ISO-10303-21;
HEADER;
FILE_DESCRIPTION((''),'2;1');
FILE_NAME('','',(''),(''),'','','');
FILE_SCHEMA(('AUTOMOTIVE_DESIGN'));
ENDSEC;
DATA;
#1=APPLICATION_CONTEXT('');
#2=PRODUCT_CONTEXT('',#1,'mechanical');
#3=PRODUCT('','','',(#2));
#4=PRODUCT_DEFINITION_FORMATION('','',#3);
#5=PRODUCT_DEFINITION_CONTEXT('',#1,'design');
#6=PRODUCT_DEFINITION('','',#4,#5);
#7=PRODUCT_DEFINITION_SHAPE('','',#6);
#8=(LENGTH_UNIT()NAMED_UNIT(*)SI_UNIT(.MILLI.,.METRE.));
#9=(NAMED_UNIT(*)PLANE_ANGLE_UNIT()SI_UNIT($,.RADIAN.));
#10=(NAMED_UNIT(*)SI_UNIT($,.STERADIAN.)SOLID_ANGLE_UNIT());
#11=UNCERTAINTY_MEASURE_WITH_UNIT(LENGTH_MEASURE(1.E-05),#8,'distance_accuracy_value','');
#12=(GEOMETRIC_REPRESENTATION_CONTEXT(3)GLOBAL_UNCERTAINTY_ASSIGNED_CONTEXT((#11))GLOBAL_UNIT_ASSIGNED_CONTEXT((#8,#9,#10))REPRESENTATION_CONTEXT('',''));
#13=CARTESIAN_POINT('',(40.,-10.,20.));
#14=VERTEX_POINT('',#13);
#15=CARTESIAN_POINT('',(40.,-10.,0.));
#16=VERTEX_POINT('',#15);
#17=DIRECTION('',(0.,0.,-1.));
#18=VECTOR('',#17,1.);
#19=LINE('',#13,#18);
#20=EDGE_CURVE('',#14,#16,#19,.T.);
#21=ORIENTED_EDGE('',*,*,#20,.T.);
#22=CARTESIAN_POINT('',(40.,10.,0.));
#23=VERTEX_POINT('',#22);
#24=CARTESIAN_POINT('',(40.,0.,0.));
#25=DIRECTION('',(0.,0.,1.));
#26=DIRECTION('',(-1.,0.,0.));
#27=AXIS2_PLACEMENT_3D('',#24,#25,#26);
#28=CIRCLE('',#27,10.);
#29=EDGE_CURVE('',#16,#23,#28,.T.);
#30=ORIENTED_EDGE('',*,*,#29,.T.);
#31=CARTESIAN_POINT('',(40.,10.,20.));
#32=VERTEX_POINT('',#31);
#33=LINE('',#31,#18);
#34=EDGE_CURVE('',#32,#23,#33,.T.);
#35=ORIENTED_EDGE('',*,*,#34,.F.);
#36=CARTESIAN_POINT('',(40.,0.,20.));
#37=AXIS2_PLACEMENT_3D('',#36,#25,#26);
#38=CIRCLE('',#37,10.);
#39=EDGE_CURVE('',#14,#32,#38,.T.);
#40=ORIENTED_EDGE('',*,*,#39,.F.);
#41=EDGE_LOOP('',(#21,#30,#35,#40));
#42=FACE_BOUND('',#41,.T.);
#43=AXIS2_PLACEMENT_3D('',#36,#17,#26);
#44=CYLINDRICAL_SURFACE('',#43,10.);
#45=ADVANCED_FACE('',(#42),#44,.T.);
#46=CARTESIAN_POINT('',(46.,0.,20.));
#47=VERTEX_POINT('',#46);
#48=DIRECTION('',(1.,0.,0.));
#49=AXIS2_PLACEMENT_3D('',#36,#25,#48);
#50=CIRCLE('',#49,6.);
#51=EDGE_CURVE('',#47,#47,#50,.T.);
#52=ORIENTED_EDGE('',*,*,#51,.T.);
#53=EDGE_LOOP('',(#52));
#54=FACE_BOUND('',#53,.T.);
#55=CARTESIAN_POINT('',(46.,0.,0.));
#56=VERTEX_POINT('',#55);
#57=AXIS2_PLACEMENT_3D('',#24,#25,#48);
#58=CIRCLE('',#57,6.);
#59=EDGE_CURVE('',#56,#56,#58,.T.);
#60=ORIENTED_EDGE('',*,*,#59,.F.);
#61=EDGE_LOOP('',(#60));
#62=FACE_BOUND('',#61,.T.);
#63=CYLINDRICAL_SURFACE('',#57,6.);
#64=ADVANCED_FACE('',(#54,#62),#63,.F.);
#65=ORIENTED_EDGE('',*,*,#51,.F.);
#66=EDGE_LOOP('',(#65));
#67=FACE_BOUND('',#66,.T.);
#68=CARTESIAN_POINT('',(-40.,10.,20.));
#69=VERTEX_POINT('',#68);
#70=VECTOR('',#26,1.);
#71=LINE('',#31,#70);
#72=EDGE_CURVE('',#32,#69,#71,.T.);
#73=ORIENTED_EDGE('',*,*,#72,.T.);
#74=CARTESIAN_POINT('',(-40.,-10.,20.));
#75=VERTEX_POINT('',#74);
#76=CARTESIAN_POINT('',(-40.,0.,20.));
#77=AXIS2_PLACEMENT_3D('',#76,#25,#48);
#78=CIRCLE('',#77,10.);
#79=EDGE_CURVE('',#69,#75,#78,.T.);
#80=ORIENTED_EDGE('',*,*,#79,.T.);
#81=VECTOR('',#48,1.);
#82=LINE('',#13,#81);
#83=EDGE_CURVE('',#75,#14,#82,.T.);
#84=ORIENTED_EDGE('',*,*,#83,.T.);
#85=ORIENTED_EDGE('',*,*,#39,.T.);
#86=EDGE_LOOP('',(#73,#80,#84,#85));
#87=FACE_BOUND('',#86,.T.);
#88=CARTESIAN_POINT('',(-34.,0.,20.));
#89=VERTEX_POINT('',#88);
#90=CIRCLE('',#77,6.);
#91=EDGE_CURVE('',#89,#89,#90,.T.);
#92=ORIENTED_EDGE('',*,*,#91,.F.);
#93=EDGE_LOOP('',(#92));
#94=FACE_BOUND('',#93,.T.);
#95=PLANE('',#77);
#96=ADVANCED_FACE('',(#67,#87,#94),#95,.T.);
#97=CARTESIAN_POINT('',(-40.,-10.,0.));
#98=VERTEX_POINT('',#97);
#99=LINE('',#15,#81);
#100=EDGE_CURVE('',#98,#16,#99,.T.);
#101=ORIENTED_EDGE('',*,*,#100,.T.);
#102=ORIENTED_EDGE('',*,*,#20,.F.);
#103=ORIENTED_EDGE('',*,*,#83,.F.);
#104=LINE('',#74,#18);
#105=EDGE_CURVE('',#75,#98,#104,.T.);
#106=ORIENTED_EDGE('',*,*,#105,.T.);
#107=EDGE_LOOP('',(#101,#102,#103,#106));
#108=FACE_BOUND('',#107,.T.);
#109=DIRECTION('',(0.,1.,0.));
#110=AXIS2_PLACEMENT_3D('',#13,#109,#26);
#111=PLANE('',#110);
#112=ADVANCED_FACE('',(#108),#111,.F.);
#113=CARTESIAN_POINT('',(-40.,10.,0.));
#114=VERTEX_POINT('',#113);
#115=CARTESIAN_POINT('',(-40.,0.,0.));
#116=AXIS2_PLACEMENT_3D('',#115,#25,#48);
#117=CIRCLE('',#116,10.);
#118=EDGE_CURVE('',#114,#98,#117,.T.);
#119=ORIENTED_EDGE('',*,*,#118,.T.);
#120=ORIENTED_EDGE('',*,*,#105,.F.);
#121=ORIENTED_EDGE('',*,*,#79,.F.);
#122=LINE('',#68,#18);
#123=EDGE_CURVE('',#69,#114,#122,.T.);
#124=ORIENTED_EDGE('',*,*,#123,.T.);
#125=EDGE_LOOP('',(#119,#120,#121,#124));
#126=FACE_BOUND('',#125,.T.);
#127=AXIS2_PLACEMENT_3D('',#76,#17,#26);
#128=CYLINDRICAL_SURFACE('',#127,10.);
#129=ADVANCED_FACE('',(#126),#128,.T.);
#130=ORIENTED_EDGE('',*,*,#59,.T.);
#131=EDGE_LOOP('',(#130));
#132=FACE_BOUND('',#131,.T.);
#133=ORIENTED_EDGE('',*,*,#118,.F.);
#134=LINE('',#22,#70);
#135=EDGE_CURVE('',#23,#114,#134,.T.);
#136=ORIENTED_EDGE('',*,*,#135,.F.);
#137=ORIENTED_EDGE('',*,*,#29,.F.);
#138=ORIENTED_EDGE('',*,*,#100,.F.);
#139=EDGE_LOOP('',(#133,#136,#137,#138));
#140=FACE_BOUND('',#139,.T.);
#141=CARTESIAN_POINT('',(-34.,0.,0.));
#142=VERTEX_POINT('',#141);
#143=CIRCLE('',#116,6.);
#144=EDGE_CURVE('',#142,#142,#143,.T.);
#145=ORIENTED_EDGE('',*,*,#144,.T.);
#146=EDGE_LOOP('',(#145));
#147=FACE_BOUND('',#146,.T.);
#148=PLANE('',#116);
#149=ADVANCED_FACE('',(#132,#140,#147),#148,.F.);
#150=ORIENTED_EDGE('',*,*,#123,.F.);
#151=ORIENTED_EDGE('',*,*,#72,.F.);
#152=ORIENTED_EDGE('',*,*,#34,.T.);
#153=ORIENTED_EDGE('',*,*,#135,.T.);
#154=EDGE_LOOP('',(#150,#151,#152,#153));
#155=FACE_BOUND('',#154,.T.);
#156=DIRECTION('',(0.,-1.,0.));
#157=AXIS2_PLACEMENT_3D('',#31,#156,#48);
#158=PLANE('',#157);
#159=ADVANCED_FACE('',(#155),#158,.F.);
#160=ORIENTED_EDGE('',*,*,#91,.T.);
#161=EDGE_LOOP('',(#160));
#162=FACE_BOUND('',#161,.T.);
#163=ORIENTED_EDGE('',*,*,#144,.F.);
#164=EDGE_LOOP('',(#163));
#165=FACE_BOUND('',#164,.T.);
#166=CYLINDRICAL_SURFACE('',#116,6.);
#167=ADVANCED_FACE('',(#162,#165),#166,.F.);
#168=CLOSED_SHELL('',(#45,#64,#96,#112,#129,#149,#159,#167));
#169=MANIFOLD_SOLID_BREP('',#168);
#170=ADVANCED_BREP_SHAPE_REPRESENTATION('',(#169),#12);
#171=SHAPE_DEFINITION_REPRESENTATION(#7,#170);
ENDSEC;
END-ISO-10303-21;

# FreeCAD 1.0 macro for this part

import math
import FreeCAD as App
import Part
import Sketcher

V = App.Vector

doc = App.newDocument("Part")
params = doc.addObject("Spreadsheet::Sheet", "Params")
for row, (alias, value) in enumerate([
    ("sketch1_radius", "10 mm"),
    ("sketch1_width", "80 mm"),
    ("pad1_length", "20 mm"),
    ("sketch2_diameter", "12 mm"),
], start=1):
    params.set(f"A{row}", alias)
    params.set(f"B{row}", "=" + value)
    params.setAlias(f"B{row}", alias)

body = doc.addObject("PartDesign::Body", "Body")

sketch1 = body.newObject("Sketcher::SketchObject", "Sketch")
sketch1.AttachmentSupport = (doc.getObject("XY_Plane"), [""])
sketch1.MapMode = "FlatFace"
sketch1.addGeometry([
    Part.LineSegment(V(-40, -10, 0), V(40, -10, 0)),
    Part.ArcOfCircle(Part.Circle(V(40, 0, 0), V(0, 0, 1), 10), math.radians(-90), math.radians(90)),
    Part.LineSegment(V(40, 10, 0), V(-40, 10, 0)),
    Part.ArcOfCircle(Part.Circle(V(-40, 0, 0), V(0, 0, 1), 10), math.radians(90), math.radians(270)),
], False)
sketch1.addConstraint([
    Sketcher.Constraint("Tangent", 0, 2, 1, 1),
    Sketcher.Constraint("Tangent", 1, 2, 2, 1),
    Sketcher.Constraint("Tangent", 2, 2, 3, 1),
    Sketcher.Constraint("Tangent", 3, 2, 0, 1),
    Sketcher.Constraint("Horizontal", 0),
    Sketcher.Constraint("Horizontal", 2),
    Sketcher.Constraint("Symmetric", 1, 3, 3, 3, -1, 1),
    Sketcher.Constraint("Radius", 1, 10.0),
    Sketcher.Constraint("DistanceX", 0, 1, 0, 2, 80.0),
])
sketch1.setExpression("Constraints[7]", "Params.sketch1_radius")
sketch1.setExpression("Constraints[8]", "Params.sketch1_width")
pad1 = body.newObject("PartDesign::Pad", "Pad")
pad1.Profile = sketch1
pad1.setExpression("Length", "Params.pad1_length")

sketch2 = body.newObject("Sketcher::SketchObject", "Sketch001")
sketch2.AttachmentSupport = (doc.getObject("XY_Plane"), [""])
sketch2.MapMode = "FlatFace"
sketch2.AttachmentOffset = App.Placement(V(0, 0, 20), App.Rotation())
sketch2.addGeometry([
    Part.Circle(V(-40, 0, 0), V(0, 0, 1), 6),
    Part.Circle(V(40, 0, 0), V(0, 0, 1), 6),
], False)
sketch2.addConstraint([
    Sketcher.Constraint("Equal", 0, 1),
    Sketcher.Constraint("Symmetric", 0, 3, 1, 3, -1, 1),
    Sketcher.Constraint("PointOnObject", 0, 3, -1),
    Sketcher.Constraint("Diameter", 0, 12.0),
    Sketcher.Constraint("DistanceX", 0, 3, -1, 1, 40.0),
])
sketch2.setExpression("Constraints[3]", "Params.sketch2_diameter")
pocket1 = body.newObject("PartDesign::Pocket", "Pocket")
pocket1.Profile = sketch2
pocket1.Type = "ThroughAll"

doc.recompute()
